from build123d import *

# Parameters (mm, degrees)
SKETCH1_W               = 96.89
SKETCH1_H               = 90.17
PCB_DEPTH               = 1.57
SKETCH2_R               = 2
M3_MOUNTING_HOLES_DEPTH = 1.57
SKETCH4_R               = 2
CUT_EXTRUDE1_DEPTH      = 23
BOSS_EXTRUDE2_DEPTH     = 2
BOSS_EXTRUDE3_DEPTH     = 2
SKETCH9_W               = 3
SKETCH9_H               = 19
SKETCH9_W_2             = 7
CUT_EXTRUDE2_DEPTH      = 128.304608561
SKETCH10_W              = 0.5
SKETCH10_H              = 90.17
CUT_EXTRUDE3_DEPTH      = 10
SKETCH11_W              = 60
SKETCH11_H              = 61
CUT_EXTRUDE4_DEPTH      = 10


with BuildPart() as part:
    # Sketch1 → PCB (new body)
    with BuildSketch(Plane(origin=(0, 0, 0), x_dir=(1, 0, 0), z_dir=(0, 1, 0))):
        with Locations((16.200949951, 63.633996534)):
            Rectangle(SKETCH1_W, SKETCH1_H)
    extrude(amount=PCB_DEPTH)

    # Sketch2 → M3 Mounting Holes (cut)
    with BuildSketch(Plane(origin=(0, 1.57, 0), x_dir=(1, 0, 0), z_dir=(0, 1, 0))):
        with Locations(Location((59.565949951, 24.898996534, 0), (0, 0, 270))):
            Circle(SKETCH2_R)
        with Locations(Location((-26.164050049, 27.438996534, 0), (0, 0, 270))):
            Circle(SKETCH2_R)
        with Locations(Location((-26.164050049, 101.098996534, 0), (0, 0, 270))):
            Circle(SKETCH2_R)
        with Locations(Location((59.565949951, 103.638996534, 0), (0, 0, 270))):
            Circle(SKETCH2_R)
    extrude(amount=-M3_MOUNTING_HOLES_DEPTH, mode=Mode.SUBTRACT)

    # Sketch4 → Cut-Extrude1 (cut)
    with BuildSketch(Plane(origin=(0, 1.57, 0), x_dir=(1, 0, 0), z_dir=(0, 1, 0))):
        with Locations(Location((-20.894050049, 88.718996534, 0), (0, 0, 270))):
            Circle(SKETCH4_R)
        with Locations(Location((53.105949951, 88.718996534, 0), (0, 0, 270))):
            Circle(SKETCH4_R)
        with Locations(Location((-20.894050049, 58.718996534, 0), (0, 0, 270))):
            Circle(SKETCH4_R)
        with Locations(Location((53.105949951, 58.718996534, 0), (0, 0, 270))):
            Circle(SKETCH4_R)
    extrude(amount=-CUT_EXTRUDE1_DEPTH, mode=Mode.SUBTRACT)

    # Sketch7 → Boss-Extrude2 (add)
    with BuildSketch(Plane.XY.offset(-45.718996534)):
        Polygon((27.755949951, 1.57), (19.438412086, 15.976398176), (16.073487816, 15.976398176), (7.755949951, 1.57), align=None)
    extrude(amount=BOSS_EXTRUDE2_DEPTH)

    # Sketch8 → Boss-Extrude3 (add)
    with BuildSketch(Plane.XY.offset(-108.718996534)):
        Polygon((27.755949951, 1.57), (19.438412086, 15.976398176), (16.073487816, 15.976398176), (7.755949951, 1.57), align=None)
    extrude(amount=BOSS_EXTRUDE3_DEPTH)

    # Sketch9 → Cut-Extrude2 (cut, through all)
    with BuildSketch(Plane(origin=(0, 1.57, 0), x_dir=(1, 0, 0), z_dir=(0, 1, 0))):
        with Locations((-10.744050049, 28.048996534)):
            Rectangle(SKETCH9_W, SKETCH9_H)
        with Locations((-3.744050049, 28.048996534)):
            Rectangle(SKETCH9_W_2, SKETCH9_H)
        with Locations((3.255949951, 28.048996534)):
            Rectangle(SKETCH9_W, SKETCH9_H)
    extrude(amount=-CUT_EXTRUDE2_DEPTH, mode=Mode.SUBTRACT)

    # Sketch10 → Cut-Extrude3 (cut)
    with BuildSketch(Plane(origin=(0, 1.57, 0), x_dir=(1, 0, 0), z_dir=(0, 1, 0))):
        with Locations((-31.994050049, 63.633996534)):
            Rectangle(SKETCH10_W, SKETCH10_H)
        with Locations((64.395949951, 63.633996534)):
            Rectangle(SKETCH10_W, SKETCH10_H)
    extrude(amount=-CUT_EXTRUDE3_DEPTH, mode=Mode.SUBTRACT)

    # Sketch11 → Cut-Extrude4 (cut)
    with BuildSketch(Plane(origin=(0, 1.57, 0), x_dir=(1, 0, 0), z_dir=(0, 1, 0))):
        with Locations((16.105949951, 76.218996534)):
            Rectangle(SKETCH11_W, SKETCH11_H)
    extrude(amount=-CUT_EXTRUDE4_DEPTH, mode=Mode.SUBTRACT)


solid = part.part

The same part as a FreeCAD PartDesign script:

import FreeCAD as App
import Part
import Sketcher
Q = App.Units.Quantity

doc = App.newDocument("Part")
body = doc.addObject("PartDesign::Body", "Body")

sketch1 = body.newObject("Sketcher::SketchObject", "Sketch")
sketch1.AttachmentSupport = (doc.getObject("XZ_Plane"), [""])
sketch1.MapMode = "FlatFace"
sketch1.addGeometry(Part.LineSegment(App.Vector(-32, -109, 0), App.Vector(-32, -19, 0)), False)
sketch1.addGeometry(Part.LineSegment(App.Vector(-32, -19, 0), App.Vector(65, -19, 0)), False)
sketch1.addGeometry(Part.LineSegment(App.Vector(65, -19, 0), App.Vector(65, -109, 0)), False)
sketch1.addGeometry(Part.LineSegment(App.Vector(65, -109, 0), App.Vector(-32, -109, 0)), False)
sketch1.addConstraint(Sketcher.Constraint("Coincident", 0, 2, 1, 1))
sketch1.addConstraint(Sketcher.Constraint("Coincident", 1, 2, 2, 1))
sketch1.addConstraint(Sketcher.Constraint("Coincident", 2, 2, 3, 1))
sketch1.addConstraint(Sketcher.Constraint("Coincident", 3, 2, 0, 1))
sketch1.addConstraint(Sketcher.Constraint("Vertical", 0))
sketch1.addConstraint(Sketcher.Constraint("Horizontal", 1))
sketch1.addConstraint(Sketcher.Constraint("Vertical", 2))
sketch1.addConstraint(Sketcher.Constraint("Horizontal", 3))
sketch1.addConstraint(Sketcher.Constraint("DistanceX", 1, 1, 1, 2, 96.89))
sketch1.addConstraint(Sketcher.Constraint("DistanceY", 0, 1, 0, 2, 90.17))
sketch1.addConstraint(Sketcher.Constraint("DistanceX", 0, 2, -1, 1, 32.24405))
sketch1.addConstraint(Sketcher.Constraint("DistanceY", 0, 2, -1, 1, 18.548997))
pad1 = body.newObject("PartDesign::Pad", "Pad")
pad1.Profile = sketch1
pad1.Length = 1.57
pad1.Reversed = True

sketch2 = body.newObject("Sketcher::SketchObject", "Sketch001")
sketch2.AttachmentSupport = (doc.getObject("XZ_Plane"), [""])
sketch2.MapMode = "FlatFace"
sketch2.AttachmentOffset = App.Placement(App.Vector(0, 0, -1.57), App.Rotation())
sketch2.addGeometry(Part.Circle(App.Vector(59.6, -24.9, 0), App.Vector(0, 0, 1), 2), False)
sketch2.addGeometry(Part.Circle(App.Vector(-26.2, -27.4, 0), App.Vector(0, 0, 1), 2), False)
sketch2.addGeometry(Part.Circle(App.Vector(-26.2, -101.1, 0), App.Vector(0, 0, 1), 2), False)
sketch2.addGeometry(Part.Circle(App.Vector(59.6, -103.6, 0), App.Vector(0, 0, 1), 2), False)
sketch2.addConstraint(Sketcher.Constraint("Equal", 0, 1))
sketch2.addConstraint(Sketcher.Constraint("Equal", 1, 2))
sketch2.addConstraint(Sketcher.Constraint("Equal", 2, 3))
sketch2.addConstraint(Sketcher.Constraint("Vertical", 1, 3, 2, 3))
sketch2.addConstraint(Sketcher.Constraint("Vertical", 0, 3, 3, 3))
sketch2.addConstraint(Sketcher.Constraint("Diameter", 0, 4.0))
sketch2.addConstraint(Sketcher.Constraint("DistanceY", 2, 3, 0, 3, 76.2))
sketch2.addConstraint(Sketcher.Constraint("DistanceY", 3, 3, 1, 3, 76.2))
sketch2.addConstraint(Sketcher.Constraint("DistanceX", 1, 3, 0, 3, 85.73))
sketch2.addConstraint(Sketcher.Constraint("DistanceY", 1, 3, 0, 3, 2.54))
sketch2.addConstraint(Sketcher.Constraint("DistanceX", -1, 1, 0, 3, 59.56595))
sketch2.addConstraint(Sketcher.Constraint("DistanceY", 0, 3, -1, 1, 24.898997))
pocket1 = body.newObject("PartDesign::Pocket", "Pocket")
pocket1.Profile = sketch2
pocket1.Length = 1.57
pocket1.Reversed = True

sketch3 = body.newObject("Sketcher::SketchObject", "Sketch002")
sketch3.AttachmentSupport = (doc.getObject("XZ_Plane"), [""])
sketch3.MapMode = "FlatFace"
sketch3.AttachmentOffset = App.Placement(App.Vector(0, 0, -1.57), App.Rotation())
sketch3.addGeometry(Part.Circle(App.Vector(-20.9, -88.7, 0), App.Vector(0, 0, 1), 2), False)
sketch3.addGeometry(Part.Circle(App.Vector(53.1, -88.7, 0), App.Vector(0, 0, 1), 2), False)
sketch3.addGeometry(Part.Circle(App.Vector(-20.9, -58.7, 0), App.Vector(0, 0, 1), 2), False)
sketch3.addGeometry(Part.Circle(App.Vector(53.1, -58.7, 0), App.Vector(0, 0, 1), 2), False)
sketch3.addConstraint(Sketcher.Constraint("Equal", 0, 1))
sketch3.addConstraint(Sketcher.Constraint("Equal", 1, 2))
sketch3.addConstraint(Sketcher.Constraint("Equal", 2, 3))
sketch3.addConstraint(Sketcher.Constraint("Horizontal", 0, 3, 1, 3))
sketch3.addConstraint(Sketcher.Constraint("Horizontal", 2, 3, 3, 3))
sketch3.addConstraint(Sketcher.Constraint("Vertical", 0, 3, 2, 3))
sketch3.addConstraint(Sketcher.Constraint("Vertical", 1, 3, 3, 3))
sketch3.addConstraint(Sketcher.Constraint("Diameter", 0, 4.0))
sketch3.addConstraint(Sketcher.Constraint("DistanceX", 0, 3, 1, 3, 74.0))
sketch3.addConstraint(Sketcher.Constraint("DistanceY", 0, 3, 2, 3, 30.0))
sketch3.addConstraint(Sketcher.Constraint("DistanceX", 0, 3, -1, 1, 20.89405))
sketch3.addConstraint(Sketcher.Constraint("DistanceY", 0, 3, -1, 1, 88.718997))
pocket2 = body.newObject("PartDesign::Pocket", "Pocket001")
pocket2.Profile = sketch3
pocket2.Length = 23
pocket2.Reversed = True

sketch4 = body.newObject("Sketcher::SketchObject", "Sketch003")
sketch4.AttachmentSupport = (doc.getObject("XY_Plane"), [""])
sketch4.MapMode = "FlatFace"
sketch4.AttachmentOffset = App.Placement(App.Vector(0, 0, -45.718997), App.Rotation())
sketch4.addGeometry(Part.LineSegment(App.Vector(27.8, 1.6, 0), App.Vector(19.4, 16, 0)), False)
sketch4.addGeometry(Part.LineSegment(App.Vector(19.4, 16, 0), App.Vector(16.1, 16, 0)), False)
sketch4.addGeometry(Part.LineSegment(App.Vector(16.1, 16, 0), App.Vector(7.8, 1.6, 0)), False)
sketch4.addGeometry(Part.LineSegment(App.Vector(7.8, 1.6, 0), App.Vector(27.8, 1.6, 0)), False)
sketch4.addConstraint(Sketcher.Constraint("Coincident", 0, 2, 1, 1))
sketch4.addConstraint(Sketcher.Constraint("Coincident", 1, 2, 2, 1))
sketch4.addConstraint(Sketcher.Constraint("Coincident", 2, 2, 3, 1))
sketch4.addConstraint(Sketcher.Constraint("Coincident", 3, 2, 0, 1))
sketch4.addConstraint(Sketcher.Constraint("Horizontal", 1))
sketch4.addConstraint(Sketcher.Constraint("Horizontal", 3))
sketch4.addConstraint(Sketcher.Constraint("Equal", 0, 2))
sketch4.addConstraint(Sketcher.Constraint("DistanceX", 3, 1, 3, 2, 20.0))
sketch4.addConstraint(Sketcher.Constraint("Angle", 0, Q("120 deg")))
sketch4.addConstraint(Sketcher.Constraint("DistanceY", -1, 1, 2, 2, 1.57))
sketch4.addConstraint(Sketcher.Constraint("DistanceY", -1, 1, 0, 2, 15.976398))
sketch4.addConstraint(Sketcher.Constraint("DistanceX", -1, 1, 2, 2, 7.75595))
pad2 = body.newObject("PartDesign::Pad", "Pad001")
pad2.Profile = sketch4
pad2.Length = 2

sketch5 = body.newObject("Sketcher::SketchObject", "Sketch004")
sketch5.AttachmentSupport = (doc.getObject("XY_Plane"), [""])
sketch5.MapMode = "FlatFace"
sketch5.AttachmentOffset = App.Placement(App.Vector(0, 0, -108.718997), App.Rotation())
sketch5.addGeometry(Part.LineSegment(App.Vector(27.8, 1.6, 0), App.Vector(19.4, 16, 0)), False)
sketch5.addGeometry(Part.LineSegment(App.Vector(19.4, 16, 0), App.Vector(16.1, 16, 0)), False)
sketch5.addGeometry(Part.LineSegment(App.Vector(16.1, 16, 0), App.Vector(7.8, 1.6, 0)), False)
sketch5.addGeometry(Part.LineSegment(App.Vector(7.8, 1.6, 0), App.Vector(27.8, 1.6, 0)), False)
sketch5.addConstraint(Sketcher.Constraint("Coincident", 0, 2, 1, 1))
sketch5.addConstraint(Sketcher.Constraint("Coincident", 1, 2, 2, 1))
sketch5.addConstraint(Sketcher.Constraint("Coincident", 2, 2, 3, 1))
sketch5.addConstraint(Sketcher.Constraint("Coincident", 3, 2, 0, 1))
sketch5.addConstraint(Sketcher.Constraint("Horizontal", 1))
sketch5.addConstraint(Sketcher.Constraint("Horizontal", 3))
sketch5.addConstraint(Sketcher.Constraint("Equal", 0, 2))
sketch5.addConstraint(Sketcher.Constraint("DistanceX", 3, 1, 3, 2, 20.0))
sketch5.addConstraint(Sketcher.Constraint("Angle", 0, Q("120 deg")))
sketch5.addConstraint(Sketcher.Constraint("DistanceY", -1, 1, 2, 2, 1.57))
sketch5.addConstraint(Sketcher.Constraint("DistanceY", -1, 1, 0, 2, 15.976398))
sketch5.addConstraint(Sketcher.Constraint("DistanceX", -1, 1, 2, 2, 7.75595))
pad3 = body.newObject("PartDesign::Pad", "Pad002")
pad3.Profile = sketch5
pad3.Length = 2

sketch6 = body.newObject("Sketcher::SketchObject", "Sketch005")
sketch6.AttachmentSupport = (doc.getObject("XZ_Plane"), [""])
sketch6.MapMode = "FlatFace"
sketch6.AttachmentOffset = App.Placement(App.Vector(0, 0, -1.57), App.Rotation())
sketch6.addGeometry(Part.LineSegment(App.Vector(-12.2, -37.5, 0), App.Vector(-12.2, -18.5, 0)), False)
sketch6.addGeometry(Part.LineSegment(App.Vector(-12.2, -18.5, 0), App.Vector(-9.2, -18.5, 0)), False)
sketch6.addGeometry(Part.LineSegment(App.Vector(-9.2, -18.5, 0), App.Vector(-9.2, -37.5, 0)), False)
sketch6.addGeometry(Part.LineSegment(App.Vector(-9.2, -37.5, 0), App.Vector(-12.2, -37.5, 0)), False)
sketch6.addGeometry(Part.LineSegment(App.Vector(-7.2, -37.5, 0), App.Vector(-7.2, -18.5, 0)), False)
sketch6.addGeometry(Part.LineSegment(App.Vector(-7.2, -18.5, 0), App.Vector(-0.2, -18.5, 0)), False)
sketch6.addGeometry(Part.LineSegment(App.Vector(-0.2, -18.5, 0), App.Vector(-0.2, -37.5, 0)), False)
sketch6.addGeometry(Part.LineSegment(App.Vector(-0.2, -37.5, 0), App.Vector(-7.2, -37.5, 0)), False)
sketch6.addGeometry(Part.LineSegment(App.Vector(1.8, -37.5, 0), App.Vector(1.8, -18.5, 0)), False)
sketch6.addGeometry(Part.LineSegment(App.Vector(1.8, -18.5, 0), App.Vector(4.8, -18.5, 0)), False)
sketch6.addGeometry(Part.LineSegment(App.Vector(4.8, -18.5, 0), App.Vector(4.8, -37.5, 0)), False)
sketch6.addGeometry(Part.LineSegment(App.Vector(4.8, -37.5, 0), App.Vector(1.8, -37.5, 0)), False)
sketch6.addConstraint(Sketcher.Constraint("Coincident", 0, 2, 1, 1))
sketch6.addConstraint(Sketcher.Constraint("Coincident", 1, 2, 2, 1))
sketch6.addConstraint(Sketcher.Constraint("Coincident", 2, 2, 3, 1))
sketch6.addConstraint(Sketcher.Constraint("Coincident", 3, 2, 0, 1))
sketch6.addConstraint(Sketcher.Constraint("Coincident", 4, 2, 5, 1))
sketch6.addConstraint(Sketcher.Constraint("Coincident", 5, 2, 6, 1))
sketch6.addConstraint(Sketcher.Constraint("Coincident", 6, 2, 7, 1))
sketch6.addConstraint(Sketcher.Constraint("Coincident", 7, 2, 4, 1))
sketch6.addConstraint(Sketcher.Constraint("Coincident", 8, 2, 9, 1))
sketch6.addConstraint(Sketcher.Constraint("Coincident", 9, 2, 10, 1))
sketch6.addConstraint(Sketcher.Constraint("Coincident", 10, 2, 11, 1))
sketch6.addConstraint(Sketcher.Constraint("Coincident", 11, 2, 8, 1))
sketch6.addConstraint(Sketcher.Constraint("Vertical", 0))
sketch6.addConstraint(Sketcher.Constraint("Horizontal", 1))
sketch6.addConstraint(Sketcher.Constraint("Vertical", 2))
sketch6.addConstraint(Sketcher.Constraint("Horizontal", 3))
sketch6.addConstraint(Sketcher.Constraint("Vertical", 4))
sketch6.addConstraint(Sketcher.Constraint("Horizontal", 5))
sketch6.addConstraint(Sketcher.Constraint("Vertical", 6))
sketch6.addConstraint(Sketcher.Constraint("Horizontal", 7))
sketch6.addConstraint(Sketcher.Constraint("Vertical", 8))
sketch6.addConstraint(Sketcher.Constraint("Horizontal", 9))
sketch6.addConstraint(Sketcher.Constraint("Vertical", 10))
sketch6.addConstraint(Sketcher.Constraint("Horizontal", 11))
sketch6.addConstraint(Sketcher.Constraint("Horizontal", 1, 2, 4, 2))
sketch6.addConstraint(Sketcher.Constraint("Horizontal", 3, 2, 6, 2))
sketch6.addConstraint(Sketcher.Constraint("Horizontal", 5, 2, 8, 2))
sketch6.addConstraint(Sketcher.Constraint("Horizontal", 7, 2, 10, 2))
sketch6.addConstraint(Sketcher.Constraint("Equal", 3, 9))
sketch6.addConstraint(Sketcher.Constraint("DistanceX", 1, 1, 1, 2, 3.0))
sketch6.addConstraint(Sketcher.Constraint("DistanceX", 5, 1, 5, 2, 7.0))
sketch6.addConstraint(Sketcher.Constraint("DistanceY", 0, 1, 0, 2, 19.0))
sketch6.addConstraint(Sketcher.Constraint("DistanceX", 1, 2, 4, 2, 2.0))
sketch6.addConstraint(Sketcher.Constraint("DistanceX", 5, 2, 8, 2, 2.0))
sketch6.addConstraint(Sketcher.Constraint("DistanceX", 0, 2, -1, 1, 12.24405))
sketch6.addConstraint(Sketcher.Constraint("DistanceY", 0, 2, -1, 1, 18.548997))
pocket3 = body.newObject("PartDesign::Pocket", "Pocket002")
pocket3.Profile = sketch6
pocket3.Type = "ThroughAll"
pocket3.Reversed = True

sketch7 = body.newObject("Sketcher::SketchObject", "Sketch006")
sketch7.AttachmentSupport = (doc.getObject("XZ_Plane"), [""])
sketch7.MapMode = "FlatFace"
sketch7.AttachmentOffset = App.Placement(App.Vector(0, 0, -1.57), App.Rotation())
sketch7.addGeometry(Part.LineSegment(App.Vector(-32.2, -108.7, 0), App.Vector(-32.2, -18.5, 0)), False)
sketch7.addGeometry(Part.LineSegment(App.Vector(-32.2, -18.5, 0), App.Vector(-31.7, -18.5, 0)), False)
sketch7.addGeometry(Part.LineSegment(App.Vector(-31.7, -18.5, 0), App.Vector(-31.7, -108.7, 0)), False)
sketch7.addGeometry(Part.LineSegment(App.Vector(-31.7, -108.7, 0), App.Vector(-32.2, -108.7, 0)), False)
sketch7.addGeometry(Part.LineSegment(App.Vector(64.1, -108.7, 0), App.Vector(64.1, -18.5, 0)), False)
sketch7.addGeometry(Part.LineSegment(App.Vector(64.1, -18.5, 0), App.Vector(64.6, -18.5, 0)), False)
sketch7.addGeometry(Part.LineSegment(App.Vector(64.6, -18.5, 0), App.Vector(64.6, -108.7, 0)), False)
sketch7.addGeometry(Part.LineSegment(App.Vector(64.6, -108.7, 0), App.Vector(64.1, -108.7, 0)), False)
sketch7.addConstraint(Sketcher.Constraint("Coincident", 0, 2, 1, 1))
sketch7.addConstraint(Sketcher.Constraint("Coincident", 1, 2, 2, 1))
sketch7.addConstraint(Sketcher.Constraint("Coincident", 2, 2, 3, 1))
sketch7.addConstraint(Sketcher.Constraint("Coincident", 3, 2, 0, 1))
sketch7.addConstraint(Sketcher.Constraint("Coincident", 4, 2, 5, 1))
sketch7.addConstraint(Sketcher.Constraint("Coincident", 5, 2, 6, 1))
sketch7.addConstraint(Sketcher.Constraint("Coincident", 6, 2, 7, 1))
sketch7.addConstraint(Sketcher.Constraint("Coincident", 7, 2, 4, 1))
sketch7.addConstraint(Sketcher.Constraint("Vertical", 0))
sketch7.addConstraint(Sketcher.Constraint("Horizontal", 1))
sketch7.addConstraint(Sketcher.Constraint("Vertical", 2))
sketch7.addConstraint(Sketcher.Constraint("Horizontal", 3))
sketch7.addConstraint(Sketcher.Constraint("Vertical", 4))
sketch7.addConstraint(Sketcher.Constraint("Horizontal", 5))
sketch7.addConstraint(Sketcher.Constraint("Vertical", 6))
sketch7.addConstraint(Sketcher.Constraint("Horizontal", 7))
sketch7.addConstraint(Sketcher.Constraint("Horizontal", 1, 2, 4, 2))
sketch7.addConstraint(Sketcher.Constraint("Horizontal", 3, 2, 6, 2))
sketch7.addConstraint(Sketcher.Constraint("Equal", 3, 5))
sketch7.addConstraint(Sketcher.Constraint("DistanceX", 1, 1, 1, 2, 0.5))
sketch7.addConstraint(Sketcher.Constraint("DistanceY", 0, 1, 0, 2, 90.17))
sketch7.addConstraint(Sketcher.Constraint("DistanceX", 1, 2, 4, 2, 95.89))
sketch7.addConstraint(Sketcher.Constraint("DistanceX", 0, 2, -1, 1, 32.24405))
sketch7.addConstraint(Sketcher.Constraint("DistanceY", 0, 2, -1, 1, 18.548997))
pocket4 = body.newObject("PartDesign::Pocket", "Pocket003")
pocket4.Profile = sketch7
pocket4.Length = 10
pocket4.Reversed = True

sketch8 = body.newObject("Sketcher::SketchObject", "Sketch007")
sketch8.AttachmentSupport = (doc.getObject("XZ_Plane"), [""])
sketch8.MapMode = "FlatFace"
sketch8.AttachmentOffset = App.Placement(App.Vector(0, 0, -1.57), App.Rotation())
sketch8.addGeometry(Part.LineSegment(App.Vector(-14, -107, 0), App.Vector(-14, -46, 0)), False)
sketch8.addGeometry(Part.LineSegment(App.Vector(-14, -46, 0), App.Vector(46, -46, 0)), False)
sketch8.addGeometry(Part.LineSegment(App.Vector(46, -46, 0), App.Vector(46, -107, 0)), False)
sketch8.addGeometry(Part.LineSegment(App.Vector(46, -107, 0), App.Vector(-14, -107, 0)), False)
sketch8.addConstraint(Sketcher.Constraint("Coincident", 0, 2, 1, 1))
sketch8.addConstraint(Sketcher.Constraint("Coincident", 1, 2, 2, 1))
sketch8.addConstraint(Sketcher.Constraint("Coincident", 2, 2, 3, 1))
sketch8.addConstraint(Sketcher.Constraint("Coincident", 3, 2, 0, 1))
sketch8.addConstraint(Sketcher.Constraint("Vertical", 0))
sketch8.addConstraint(Sketcher.Constraint("Horizontal", 1))
sketch8.addConstraint(Sketcher.Constraint("Vertical", 2))
sketch8.addConstraint(Sketcher.Constraint("Horizontal", 3))
sketch8.addConstraint(Sketcher.Constraint("DistanceX", 1, 1, 1, 2, 60.0))
sketch8.addConstraint(Sketcher.Constraint("DistanceY", 0, 1, 0, 2, 61.0))
sketch8.addConstraint(Sketcher.Constraint("DistanceX", 0, 2, -1, 1, 13.89405))
sketch8.addConstraint(Sketcher.Constraint("DistanceY", 0, 2, -1, 1, 45.718997))
pocket5 = body.newObject("PartDesign::Pocket", "Pocket004")
pocket5.Profile = sketch8
pocket5.Length = 10
pocket5.Reversed = True

doc.recompute()
